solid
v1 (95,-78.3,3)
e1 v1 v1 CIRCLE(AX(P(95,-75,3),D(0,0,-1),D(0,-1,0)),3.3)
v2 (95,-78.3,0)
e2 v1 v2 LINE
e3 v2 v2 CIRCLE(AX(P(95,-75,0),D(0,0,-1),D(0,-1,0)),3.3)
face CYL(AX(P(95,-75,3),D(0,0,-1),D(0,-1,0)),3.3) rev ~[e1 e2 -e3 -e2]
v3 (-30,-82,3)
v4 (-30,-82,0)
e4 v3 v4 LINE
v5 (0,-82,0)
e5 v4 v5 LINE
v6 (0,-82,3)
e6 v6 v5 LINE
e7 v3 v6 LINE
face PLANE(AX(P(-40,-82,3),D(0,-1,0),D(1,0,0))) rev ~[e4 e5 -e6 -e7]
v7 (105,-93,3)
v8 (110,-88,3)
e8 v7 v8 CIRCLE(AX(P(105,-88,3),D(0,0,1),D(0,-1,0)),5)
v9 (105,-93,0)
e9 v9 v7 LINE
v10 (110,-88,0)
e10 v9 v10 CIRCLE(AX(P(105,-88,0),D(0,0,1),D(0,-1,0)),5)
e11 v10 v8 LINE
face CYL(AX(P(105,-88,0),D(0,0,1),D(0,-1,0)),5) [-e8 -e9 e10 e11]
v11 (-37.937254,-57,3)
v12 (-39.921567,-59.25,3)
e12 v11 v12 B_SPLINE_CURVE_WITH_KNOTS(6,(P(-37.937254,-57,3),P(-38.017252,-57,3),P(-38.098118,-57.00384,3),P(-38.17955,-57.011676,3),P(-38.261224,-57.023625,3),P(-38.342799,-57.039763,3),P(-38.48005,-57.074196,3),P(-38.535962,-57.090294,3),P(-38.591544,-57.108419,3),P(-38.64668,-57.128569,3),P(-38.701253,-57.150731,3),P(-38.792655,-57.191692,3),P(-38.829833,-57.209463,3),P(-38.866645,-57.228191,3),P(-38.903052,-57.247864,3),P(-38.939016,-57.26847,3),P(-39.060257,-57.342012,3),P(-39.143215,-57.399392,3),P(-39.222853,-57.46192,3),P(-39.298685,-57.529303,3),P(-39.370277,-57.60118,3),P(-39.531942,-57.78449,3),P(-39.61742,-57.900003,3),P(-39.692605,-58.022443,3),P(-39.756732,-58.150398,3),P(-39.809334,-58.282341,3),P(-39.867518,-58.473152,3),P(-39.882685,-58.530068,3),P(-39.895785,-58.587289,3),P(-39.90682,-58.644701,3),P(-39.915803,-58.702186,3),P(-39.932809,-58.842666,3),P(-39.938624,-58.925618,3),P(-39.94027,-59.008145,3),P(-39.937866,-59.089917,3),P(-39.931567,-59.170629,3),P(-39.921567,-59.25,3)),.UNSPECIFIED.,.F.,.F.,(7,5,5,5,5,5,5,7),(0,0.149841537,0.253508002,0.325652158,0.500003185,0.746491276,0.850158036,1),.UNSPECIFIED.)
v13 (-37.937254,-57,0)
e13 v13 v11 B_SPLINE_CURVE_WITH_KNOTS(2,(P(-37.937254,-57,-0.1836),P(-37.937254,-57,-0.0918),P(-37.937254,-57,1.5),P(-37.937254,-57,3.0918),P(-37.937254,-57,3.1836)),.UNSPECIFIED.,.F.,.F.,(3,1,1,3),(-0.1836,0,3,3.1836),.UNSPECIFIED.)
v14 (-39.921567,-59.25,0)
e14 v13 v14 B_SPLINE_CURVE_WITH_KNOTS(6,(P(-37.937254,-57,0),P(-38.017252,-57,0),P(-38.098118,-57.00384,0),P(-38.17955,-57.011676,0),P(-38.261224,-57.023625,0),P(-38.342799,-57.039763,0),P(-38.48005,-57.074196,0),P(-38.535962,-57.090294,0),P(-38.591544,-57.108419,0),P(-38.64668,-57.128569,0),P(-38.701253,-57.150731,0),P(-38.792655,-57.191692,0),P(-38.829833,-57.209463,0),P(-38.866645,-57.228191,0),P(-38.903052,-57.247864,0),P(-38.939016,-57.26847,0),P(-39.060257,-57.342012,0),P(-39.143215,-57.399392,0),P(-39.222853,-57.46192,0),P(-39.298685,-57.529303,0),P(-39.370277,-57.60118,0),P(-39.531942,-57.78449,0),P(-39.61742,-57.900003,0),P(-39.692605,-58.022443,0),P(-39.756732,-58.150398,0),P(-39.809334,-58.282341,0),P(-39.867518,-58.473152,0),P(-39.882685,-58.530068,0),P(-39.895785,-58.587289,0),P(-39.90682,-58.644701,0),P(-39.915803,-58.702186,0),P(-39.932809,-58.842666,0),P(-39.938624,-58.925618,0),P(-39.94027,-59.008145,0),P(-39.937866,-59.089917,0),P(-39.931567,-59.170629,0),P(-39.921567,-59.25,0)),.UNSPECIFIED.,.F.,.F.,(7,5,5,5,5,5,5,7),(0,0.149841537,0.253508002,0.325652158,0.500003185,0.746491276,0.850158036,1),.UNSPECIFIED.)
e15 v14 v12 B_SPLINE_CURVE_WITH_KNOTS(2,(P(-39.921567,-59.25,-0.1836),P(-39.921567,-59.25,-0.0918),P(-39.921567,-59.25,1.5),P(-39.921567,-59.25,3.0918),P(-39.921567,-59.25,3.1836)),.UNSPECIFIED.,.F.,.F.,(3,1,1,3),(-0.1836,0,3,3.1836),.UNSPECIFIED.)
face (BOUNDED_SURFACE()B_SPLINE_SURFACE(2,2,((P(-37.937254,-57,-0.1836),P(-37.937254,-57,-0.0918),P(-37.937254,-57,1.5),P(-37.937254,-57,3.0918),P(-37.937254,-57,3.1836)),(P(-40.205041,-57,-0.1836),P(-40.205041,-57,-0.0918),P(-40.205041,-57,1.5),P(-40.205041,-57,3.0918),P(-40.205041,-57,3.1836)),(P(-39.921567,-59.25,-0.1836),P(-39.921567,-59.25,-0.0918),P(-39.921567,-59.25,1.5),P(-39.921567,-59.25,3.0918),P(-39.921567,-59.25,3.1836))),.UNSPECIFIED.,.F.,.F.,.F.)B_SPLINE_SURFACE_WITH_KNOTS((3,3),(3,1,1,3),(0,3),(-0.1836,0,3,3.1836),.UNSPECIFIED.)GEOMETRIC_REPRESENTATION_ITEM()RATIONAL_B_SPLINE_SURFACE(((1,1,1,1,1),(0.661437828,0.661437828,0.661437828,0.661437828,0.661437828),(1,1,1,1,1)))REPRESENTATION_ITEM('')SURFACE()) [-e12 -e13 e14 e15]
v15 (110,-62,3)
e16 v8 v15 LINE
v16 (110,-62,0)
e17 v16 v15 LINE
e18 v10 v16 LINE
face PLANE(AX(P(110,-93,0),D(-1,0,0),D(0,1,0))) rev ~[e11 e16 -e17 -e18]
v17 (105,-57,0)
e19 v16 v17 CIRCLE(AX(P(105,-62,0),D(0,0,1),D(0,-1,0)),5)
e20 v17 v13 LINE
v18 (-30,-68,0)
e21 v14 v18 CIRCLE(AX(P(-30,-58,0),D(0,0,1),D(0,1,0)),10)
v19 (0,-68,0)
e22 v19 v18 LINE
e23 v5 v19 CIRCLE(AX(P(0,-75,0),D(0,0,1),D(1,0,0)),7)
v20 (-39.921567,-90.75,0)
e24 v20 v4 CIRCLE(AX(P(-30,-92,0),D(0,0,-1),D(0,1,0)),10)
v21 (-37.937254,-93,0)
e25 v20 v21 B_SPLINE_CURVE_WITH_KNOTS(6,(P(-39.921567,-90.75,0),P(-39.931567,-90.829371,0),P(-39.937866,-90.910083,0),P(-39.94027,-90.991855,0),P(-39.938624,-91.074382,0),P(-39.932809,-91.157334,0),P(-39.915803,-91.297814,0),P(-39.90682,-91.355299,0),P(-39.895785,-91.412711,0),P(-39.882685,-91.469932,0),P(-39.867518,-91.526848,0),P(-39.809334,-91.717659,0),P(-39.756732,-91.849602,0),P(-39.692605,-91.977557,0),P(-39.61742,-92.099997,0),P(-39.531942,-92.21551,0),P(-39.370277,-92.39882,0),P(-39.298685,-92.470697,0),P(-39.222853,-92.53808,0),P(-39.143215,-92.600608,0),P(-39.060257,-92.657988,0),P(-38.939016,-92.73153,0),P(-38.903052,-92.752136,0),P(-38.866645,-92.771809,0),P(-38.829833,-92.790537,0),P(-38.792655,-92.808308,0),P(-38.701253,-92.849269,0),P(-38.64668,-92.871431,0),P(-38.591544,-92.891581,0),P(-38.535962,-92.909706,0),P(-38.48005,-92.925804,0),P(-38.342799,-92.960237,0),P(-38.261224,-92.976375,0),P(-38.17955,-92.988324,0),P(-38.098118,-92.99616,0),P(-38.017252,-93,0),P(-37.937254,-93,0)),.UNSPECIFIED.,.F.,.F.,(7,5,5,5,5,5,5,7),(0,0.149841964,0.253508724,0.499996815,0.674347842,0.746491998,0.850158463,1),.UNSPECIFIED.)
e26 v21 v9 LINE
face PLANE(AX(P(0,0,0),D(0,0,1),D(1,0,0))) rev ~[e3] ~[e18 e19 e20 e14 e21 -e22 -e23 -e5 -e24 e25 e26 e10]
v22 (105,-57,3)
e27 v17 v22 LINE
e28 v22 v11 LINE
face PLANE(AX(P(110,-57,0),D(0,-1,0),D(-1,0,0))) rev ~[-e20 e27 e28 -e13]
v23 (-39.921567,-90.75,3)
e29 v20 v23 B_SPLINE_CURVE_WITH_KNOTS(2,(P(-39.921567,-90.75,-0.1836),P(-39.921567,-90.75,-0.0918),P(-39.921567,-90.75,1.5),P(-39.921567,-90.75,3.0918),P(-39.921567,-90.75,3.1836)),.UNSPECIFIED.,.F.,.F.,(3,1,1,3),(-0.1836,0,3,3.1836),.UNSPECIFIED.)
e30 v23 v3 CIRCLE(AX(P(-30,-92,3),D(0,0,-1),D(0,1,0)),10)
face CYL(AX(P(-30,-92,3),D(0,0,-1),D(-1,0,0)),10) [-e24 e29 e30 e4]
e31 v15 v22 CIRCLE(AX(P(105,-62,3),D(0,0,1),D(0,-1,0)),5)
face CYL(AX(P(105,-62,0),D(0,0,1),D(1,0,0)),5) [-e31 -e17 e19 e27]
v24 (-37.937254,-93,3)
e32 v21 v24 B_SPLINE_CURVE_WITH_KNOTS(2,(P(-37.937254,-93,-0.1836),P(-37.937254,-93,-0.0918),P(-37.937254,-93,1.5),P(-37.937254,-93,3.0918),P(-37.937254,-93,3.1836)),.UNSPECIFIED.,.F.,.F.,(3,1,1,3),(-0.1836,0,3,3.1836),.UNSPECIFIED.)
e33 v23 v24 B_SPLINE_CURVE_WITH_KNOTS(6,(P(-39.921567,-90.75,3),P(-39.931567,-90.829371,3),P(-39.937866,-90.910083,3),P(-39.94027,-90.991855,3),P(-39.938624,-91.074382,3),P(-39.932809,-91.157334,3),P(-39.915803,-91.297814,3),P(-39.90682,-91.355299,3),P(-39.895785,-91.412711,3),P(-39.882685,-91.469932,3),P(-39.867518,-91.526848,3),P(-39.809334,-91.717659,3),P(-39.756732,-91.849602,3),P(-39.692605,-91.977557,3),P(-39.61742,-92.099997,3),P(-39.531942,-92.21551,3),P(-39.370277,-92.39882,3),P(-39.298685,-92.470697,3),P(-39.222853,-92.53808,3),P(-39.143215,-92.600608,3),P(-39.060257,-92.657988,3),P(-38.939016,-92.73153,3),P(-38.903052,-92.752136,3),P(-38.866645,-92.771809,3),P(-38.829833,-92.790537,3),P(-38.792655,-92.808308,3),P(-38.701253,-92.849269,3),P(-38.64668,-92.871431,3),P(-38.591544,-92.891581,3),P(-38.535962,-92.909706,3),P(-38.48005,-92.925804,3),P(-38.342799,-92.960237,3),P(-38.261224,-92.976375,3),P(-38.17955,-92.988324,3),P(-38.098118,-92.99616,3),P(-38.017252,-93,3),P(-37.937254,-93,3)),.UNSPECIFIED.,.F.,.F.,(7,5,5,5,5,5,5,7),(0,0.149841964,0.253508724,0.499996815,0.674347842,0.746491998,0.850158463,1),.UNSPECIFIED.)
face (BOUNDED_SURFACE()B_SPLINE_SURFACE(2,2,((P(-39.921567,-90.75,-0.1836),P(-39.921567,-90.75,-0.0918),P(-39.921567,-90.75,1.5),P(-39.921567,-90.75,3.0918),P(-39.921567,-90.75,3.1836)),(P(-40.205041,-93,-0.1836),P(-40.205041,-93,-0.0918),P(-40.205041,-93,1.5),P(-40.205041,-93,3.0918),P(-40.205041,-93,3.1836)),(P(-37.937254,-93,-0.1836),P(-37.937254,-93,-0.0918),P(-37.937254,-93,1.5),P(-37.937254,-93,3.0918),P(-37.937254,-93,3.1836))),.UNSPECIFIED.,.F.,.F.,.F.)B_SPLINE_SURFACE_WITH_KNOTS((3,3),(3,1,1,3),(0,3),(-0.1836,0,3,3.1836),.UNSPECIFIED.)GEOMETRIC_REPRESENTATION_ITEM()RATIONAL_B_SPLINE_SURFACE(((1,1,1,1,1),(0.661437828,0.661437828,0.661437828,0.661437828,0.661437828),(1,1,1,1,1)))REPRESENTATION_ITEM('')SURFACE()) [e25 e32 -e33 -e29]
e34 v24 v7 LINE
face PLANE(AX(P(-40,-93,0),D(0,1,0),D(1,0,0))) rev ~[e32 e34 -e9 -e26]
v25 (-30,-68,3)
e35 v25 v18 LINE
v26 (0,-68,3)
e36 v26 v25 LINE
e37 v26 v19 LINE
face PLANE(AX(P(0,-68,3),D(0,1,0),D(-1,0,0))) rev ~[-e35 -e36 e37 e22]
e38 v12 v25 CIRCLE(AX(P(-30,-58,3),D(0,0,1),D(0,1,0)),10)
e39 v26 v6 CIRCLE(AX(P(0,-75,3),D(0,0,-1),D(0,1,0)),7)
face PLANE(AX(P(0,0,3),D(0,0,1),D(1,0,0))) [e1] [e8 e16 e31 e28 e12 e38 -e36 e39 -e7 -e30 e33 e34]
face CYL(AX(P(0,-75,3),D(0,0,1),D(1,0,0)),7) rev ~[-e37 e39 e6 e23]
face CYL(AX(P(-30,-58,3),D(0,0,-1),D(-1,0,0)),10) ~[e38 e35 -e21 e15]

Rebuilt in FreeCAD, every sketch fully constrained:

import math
import FreeCAD as App
import Part
import Sketcher


def edges_at(feature, points):
    """Names of the edges that pass closest to the given points."""
    edges = feature.Shape.Edges
    near = lambda p: min(range(len(edges)), key=lambda i: edges[i].distToShape(Part.Vertex(*p))[0])
    return sorted({f"Edge{near(p) + 1}" for p in points})


def add_polygon(sketch, points):
    """Adds a closed chain of lines whose ends are joined by coincident constraints."""
    first, n = sketch.GeometryCount, len(points)
    for a, b in zip(points, points[1:] + points[:1]):
        sketch.addGeometry(Part.LineSegment(App.Vector(*a, 0), App.Vector(*b, 0)), False)
    for i in range(n):
        sketch.addConstraint(Sketcher.Constraint("Coincident", first + i, 2, first + (i + 1) % n, 1))

doc = App.newDocument("Part")
body = doc.addObject("PartDesign::Body", "Body")

sketch1 = body.newObject("Sketcher::SketchObject", "Sketch")
sketch1.AttachmentSupport = (doc.getObject("XY_Plane"), [""])
sketch1.MapMode = "FlatFace"
add_polygon(sketch1, [(110, -93), (110, -57), (-40, -57), (-40, -93)])
sketch1.addConstraint([
    Sketcher.Constraint("Vertical", 0),
    Sketcher.Constraint("Horizontal", 1),
    Sketcher.Constraint("Vertical", 2),
    Sketcher.Constraint("Horizontal", 3),
    Sketcher.Constraint("DistanceX", 1, 2, 1, 1, 150.0),
    Sketcher.Constraint("DistanceX", -1, 1, 0, 2, 110.0),
    Sketcher.Constraint("DistanceY", 0, 1, 0, 2, 36.0),
    Sketcher.Constraint("DistanceY", 0, 2, -1, 1, 57.0),
])
pad1 = body.newObject("PartDesign::Pad", "Pad")
pad1.Profile = sketch1
pad1.Length = 3

sketch2 = body.newObject("Sketcher::SketchObject", "Sketch001")
sketch2.AttachmentSupport = (doc.getObject("XY_Plane"), [""])
sketch2.MapMode = "FlatFace"
sketch2.AttachmentOffset = App.Placement(App.Vector(0, 0, 3), App.Rotation())
sketch2.addGeometry([
    Part.ArcOfCircle(Part.Circle(App.Vector(0, -75, 0), App.Vector(0, 0, 1), 7), math.radians(-90), math.radians(90)),
    Part.LineSegment(App.Vector(0, -68, 0), App.Vector(-40, -68, 0)),
    Part.LineSegment(App.Vector(-40, -68, 0), App.Vector(-40, -82, 0)),
    Part.LineSegment(App.Vector(-40, -82, 0), App.Vector(0, -82, 0)),
], False)
sketch2.addConstraint([
    Sketcher.Constraint("Tangent", 0, 2, 1, 1),
    Sketcher.Constraint("Coincident", 1, 2, 2, 1),
    Sketcher.Constraint("Coincident", 2, 2, 3, 1),
    Sketcher.Constraint("Tangent", 3, 2, 0, 1),
    Sketcher.Constraint("Horizontal", 1),
    Sketcher.Constraint("Vertical", 2),
    Sketcher.Constraint("Horizontal", 3),
    Sketcher.Constraint("PointOnObject", 0, 3, -2),
    Sketcher.Constraint("Radius", 0, 7.0),
    Sketcher.Constraint("DistanceX", 1, 2, 1, 1, 40.0),
    Sketcher.Constraint("DistanceY", 0, 3, -1, 1, 75.0),
])
pocket1 = body.newObject("PartDesign::Pocket", "Pocket")
pocket1.Profile = sketch2
pocket1.Length = 14
doc.recompute()

fillet = body.newObject("PartDesign::Fillet", "Fillet")
fillet.Base = (pocket1, edges_at(pocket1, [(-40, -68, 1.5), (-40, -82, 1.5)]))
fillet.Radius = 10

sketch3 = body.newObject("Sketcher::SketchObject", "Sketch002")
sketch3.AttachmentSupport = (doc.getObject("XY_Plane"), [""])
sketch3.MapMode = "FlatFace"
sketch3.AttachmentOffset = App.Placement(App.Vector(0, 0, 3), App.Rotation())
sketch3.addGeometry(Part.Circle(App.Vector(95, -75, 0), App.Vector(0, 0, 1), 3.3), False)
sketch3.addConstraint([
    Sketcher.Constraint("Diameter", 0, 6.6),
    Sketcher.Constraint("DistanceX", -1, 1, 0, 3, 95.0),
    Sketcher.Constraint("DistanceY", 0, 3, -1, 1, 75.0),
])
doc.recompute()
hole = body.newObject("PartDesign::Hole", "Hole")
hole.Profile = sketch3
hole.ThreadType = "None"
hole.Diameter = 6.6
hole.DepthType = "ThroughAll"
doc.recompute()

fillet2 = body.newObject("PartDesign::Fillet", "Fillet001")
fillet2.Base = (hole, edges_at(hole, [(110, -57, 1.5), (110, -93, 1.5)]))
fillet2.Radius = 5
doc.recompute()

fillet3 = body.newObject("PartDesign::Fillet", "Fillet002")
fillet3.Base = (fillet2, edges_at(fillet2, [(-40, -57, 1.5), (-40, -93, 1.5)]))
fillet3.Radius = 2

doc.recompute()
